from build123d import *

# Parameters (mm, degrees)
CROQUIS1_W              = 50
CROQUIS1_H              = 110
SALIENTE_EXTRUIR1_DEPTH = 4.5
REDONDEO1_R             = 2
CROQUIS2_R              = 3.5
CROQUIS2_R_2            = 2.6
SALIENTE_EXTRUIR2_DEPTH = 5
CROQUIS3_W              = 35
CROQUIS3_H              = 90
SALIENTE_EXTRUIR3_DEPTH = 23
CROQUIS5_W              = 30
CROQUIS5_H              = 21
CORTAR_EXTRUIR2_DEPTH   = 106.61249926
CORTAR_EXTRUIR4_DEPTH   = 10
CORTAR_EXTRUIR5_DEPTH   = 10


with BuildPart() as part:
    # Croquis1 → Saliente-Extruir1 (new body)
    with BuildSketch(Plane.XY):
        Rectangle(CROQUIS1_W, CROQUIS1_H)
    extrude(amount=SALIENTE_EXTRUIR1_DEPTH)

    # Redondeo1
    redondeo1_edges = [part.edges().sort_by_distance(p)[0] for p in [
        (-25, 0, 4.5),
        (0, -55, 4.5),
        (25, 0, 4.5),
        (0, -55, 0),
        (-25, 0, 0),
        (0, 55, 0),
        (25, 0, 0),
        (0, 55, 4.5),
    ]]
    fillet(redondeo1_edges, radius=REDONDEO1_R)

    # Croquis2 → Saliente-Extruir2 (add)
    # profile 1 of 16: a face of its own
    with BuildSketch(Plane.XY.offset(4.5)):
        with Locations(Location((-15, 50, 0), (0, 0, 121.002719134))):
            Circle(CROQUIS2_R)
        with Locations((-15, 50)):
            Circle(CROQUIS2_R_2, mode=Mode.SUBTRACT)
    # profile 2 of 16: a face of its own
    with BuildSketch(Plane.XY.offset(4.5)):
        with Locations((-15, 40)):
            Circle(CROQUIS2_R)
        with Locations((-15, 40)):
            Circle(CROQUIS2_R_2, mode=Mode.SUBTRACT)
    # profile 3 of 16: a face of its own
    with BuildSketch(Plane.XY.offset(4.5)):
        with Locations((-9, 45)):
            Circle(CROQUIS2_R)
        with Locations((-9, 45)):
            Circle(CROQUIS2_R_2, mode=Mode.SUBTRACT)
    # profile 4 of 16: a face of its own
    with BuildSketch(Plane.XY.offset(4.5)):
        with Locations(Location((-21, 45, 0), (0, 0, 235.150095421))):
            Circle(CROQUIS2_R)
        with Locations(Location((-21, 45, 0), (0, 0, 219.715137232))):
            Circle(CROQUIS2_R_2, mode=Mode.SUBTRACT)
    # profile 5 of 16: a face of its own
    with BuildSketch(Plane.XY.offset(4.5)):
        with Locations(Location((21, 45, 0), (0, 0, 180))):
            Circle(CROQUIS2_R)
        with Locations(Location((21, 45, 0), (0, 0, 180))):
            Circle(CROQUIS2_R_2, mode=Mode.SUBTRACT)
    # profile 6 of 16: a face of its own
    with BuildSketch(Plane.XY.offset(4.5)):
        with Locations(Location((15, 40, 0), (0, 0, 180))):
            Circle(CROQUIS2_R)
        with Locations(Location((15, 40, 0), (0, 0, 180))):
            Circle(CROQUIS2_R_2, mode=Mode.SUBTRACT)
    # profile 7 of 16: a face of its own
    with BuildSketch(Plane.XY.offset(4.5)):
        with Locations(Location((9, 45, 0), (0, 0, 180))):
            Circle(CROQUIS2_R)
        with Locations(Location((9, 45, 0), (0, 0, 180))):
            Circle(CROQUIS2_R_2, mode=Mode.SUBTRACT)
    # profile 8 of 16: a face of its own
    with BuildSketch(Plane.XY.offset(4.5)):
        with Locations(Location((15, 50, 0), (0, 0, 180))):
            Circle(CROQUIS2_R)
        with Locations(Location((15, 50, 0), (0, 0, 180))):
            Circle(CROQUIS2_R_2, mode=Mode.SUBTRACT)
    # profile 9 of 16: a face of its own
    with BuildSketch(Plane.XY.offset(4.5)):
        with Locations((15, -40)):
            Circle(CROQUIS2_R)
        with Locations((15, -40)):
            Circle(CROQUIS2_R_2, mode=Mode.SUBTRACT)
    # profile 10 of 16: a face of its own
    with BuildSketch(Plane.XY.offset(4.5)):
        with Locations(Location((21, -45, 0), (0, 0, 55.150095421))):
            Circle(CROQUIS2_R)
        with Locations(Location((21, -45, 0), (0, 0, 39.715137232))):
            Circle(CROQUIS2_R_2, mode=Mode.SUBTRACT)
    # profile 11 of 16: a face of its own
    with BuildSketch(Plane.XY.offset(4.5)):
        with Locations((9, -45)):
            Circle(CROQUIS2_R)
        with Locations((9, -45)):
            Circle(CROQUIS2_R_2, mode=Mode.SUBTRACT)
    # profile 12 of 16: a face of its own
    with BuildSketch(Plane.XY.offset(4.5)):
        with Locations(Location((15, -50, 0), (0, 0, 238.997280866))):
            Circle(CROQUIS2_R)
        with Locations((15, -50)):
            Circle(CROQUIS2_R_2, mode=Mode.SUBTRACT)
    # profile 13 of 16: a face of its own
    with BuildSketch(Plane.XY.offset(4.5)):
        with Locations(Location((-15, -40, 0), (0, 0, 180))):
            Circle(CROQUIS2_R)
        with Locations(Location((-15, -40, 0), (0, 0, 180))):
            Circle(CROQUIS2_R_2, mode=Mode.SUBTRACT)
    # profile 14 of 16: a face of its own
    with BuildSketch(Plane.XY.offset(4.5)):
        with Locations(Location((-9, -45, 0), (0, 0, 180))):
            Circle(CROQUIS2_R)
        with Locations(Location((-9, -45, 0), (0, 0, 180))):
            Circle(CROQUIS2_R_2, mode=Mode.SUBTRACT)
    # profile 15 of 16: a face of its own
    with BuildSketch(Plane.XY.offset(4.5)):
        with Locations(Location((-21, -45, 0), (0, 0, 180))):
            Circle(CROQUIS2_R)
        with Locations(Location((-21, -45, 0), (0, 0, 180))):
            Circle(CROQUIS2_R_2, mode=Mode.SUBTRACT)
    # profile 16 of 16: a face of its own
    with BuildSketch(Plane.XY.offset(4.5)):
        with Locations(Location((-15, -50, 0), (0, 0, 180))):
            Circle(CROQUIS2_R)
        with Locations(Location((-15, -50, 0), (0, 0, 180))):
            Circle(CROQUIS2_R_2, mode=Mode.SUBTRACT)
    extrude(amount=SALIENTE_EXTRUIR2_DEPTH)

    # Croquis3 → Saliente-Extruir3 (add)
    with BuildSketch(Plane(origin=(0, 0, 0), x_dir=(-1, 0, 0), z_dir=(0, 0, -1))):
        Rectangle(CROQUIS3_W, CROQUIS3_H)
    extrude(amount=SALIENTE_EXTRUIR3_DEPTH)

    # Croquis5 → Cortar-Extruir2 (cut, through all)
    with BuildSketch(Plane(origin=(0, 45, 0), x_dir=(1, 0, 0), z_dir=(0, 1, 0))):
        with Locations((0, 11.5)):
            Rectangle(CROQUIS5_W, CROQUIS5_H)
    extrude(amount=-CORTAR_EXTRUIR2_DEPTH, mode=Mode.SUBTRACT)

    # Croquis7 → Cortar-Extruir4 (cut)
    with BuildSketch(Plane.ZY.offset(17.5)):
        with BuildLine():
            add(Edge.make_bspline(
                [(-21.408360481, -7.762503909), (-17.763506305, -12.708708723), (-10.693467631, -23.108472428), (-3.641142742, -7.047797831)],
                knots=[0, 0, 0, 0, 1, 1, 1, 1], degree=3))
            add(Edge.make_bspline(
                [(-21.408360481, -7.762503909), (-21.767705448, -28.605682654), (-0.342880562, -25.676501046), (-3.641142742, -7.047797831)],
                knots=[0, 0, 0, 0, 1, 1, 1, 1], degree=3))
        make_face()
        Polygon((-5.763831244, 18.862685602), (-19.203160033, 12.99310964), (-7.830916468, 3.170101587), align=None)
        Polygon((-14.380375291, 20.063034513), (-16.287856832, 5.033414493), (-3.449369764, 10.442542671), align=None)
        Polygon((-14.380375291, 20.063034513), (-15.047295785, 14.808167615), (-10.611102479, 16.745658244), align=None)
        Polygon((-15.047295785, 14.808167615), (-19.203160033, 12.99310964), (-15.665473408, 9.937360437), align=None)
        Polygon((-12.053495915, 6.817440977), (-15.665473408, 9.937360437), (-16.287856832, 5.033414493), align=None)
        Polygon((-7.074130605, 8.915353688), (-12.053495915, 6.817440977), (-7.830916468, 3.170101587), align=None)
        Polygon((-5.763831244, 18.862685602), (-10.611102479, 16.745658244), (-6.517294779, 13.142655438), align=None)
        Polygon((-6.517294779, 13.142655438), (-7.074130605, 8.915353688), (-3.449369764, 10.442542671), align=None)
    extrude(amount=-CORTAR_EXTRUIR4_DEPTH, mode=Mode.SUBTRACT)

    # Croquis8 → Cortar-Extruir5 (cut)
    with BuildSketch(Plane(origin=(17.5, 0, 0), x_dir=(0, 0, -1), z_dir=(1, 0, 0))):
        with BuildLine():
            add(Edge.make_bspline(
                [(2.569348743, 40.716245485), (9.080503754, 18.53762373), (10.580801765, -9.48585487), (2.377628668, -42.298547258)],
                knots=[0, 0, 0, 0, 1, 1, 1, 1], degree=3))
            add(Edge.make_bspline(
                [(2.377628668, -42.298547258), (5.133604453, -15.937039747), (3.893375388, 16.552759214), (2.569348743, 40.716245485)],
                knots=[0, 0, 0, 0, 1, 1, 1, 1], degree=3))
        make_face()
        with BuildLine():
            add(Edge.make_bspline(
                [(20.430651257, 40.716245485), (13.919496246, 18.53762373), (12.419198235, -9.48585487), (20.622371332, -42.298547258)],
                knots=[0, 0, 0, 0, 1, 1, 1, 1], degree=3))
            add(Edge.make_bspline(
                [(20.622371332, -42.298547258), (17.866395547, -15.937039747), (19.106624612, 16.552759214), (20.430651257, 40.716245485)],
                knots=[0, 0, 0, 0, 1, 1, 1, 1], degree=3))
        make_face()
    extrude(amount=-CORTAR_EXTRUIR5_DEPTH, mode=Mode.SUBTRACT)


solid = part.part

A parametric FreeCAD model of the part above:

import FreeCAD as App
import Part
import Sketcher
from FreeCAD import Vector
Q = App.Units.Quantity


def edges_at(feature, points):
    """Names of the edges that pass closest to the given points."""
    edges = feature.Shape.Edges
    near = lambda p: min(range(len(edges)), key=lambda i: edges[i].distToShape(Part.Vertex(*p))[0])
    return sorted({f"Edge{near(p) + 1}" for p in points})

doc = App.newDocument("Part")
body = doc.addObject("PartDesign::Body", "Body")

sketch1 = body.newObject("Sketcher::SketchObject", "Sketch")
sketch1.AttachmentSupport = (doc.getObject("XY_Plane"), [""])
sketch1.MapMode = "FlatFace"
sketch1.addGeometry(Part.LineSegment(Vector(-25, 55, 0), Vector(-25, -55, 0)), False)
sketch1.addGeometry(Part.LineSegment(Vector(-25, -55, 0), Vector(25, -55, 0)), False)
sketch1.addGeometry(Part.LineSegment(Vector(25, -55, 0), Vector(25, 55, 0)), False)
sketch1.addGeometry(Part.LineSegment(Vector(25, 55, 0), Vector(-25, 55, 0)), False)
sketch1.addConstraint(Sketcher.Constraint("Coincident", 0, 2, 1, 1))
sketch1.addConstraint(Sketcher.Constraint("Coincident", 1, 2, 2, 1))
sketch1.addConstraint(Sketcher.Constraint("Coincident", 2, 2, 3, 1))
sketch1.addConstraint(Sketcher.Constraint("Coincident", 3, 2, 0, 1))
sketch1.addConstraint(Sketcher.Constraint("Vertical", 0))
sketch1.addConstraint(Sketcher.Constraint("Horizontal", 1))
sketch1.addConstraint(Sketcher.Constraint("Vertical", 2))
sketch1.addConstraint(Sketcher.Constraint("Horizontal", 3))
sketch1.addConstraint(Sketcher.Constraint("Symmetric", 0, 2, 2, 2, -1, 1))
sketch1.addConstraint(Sketcher.Constraint("DistanceX", 1, 1, 1, 2, Q("50 mm")))
sketch1.addConstraint(Sketcher.Constraint("DistanceY", 0, 2, 0, 1, Q("110 mm")))
pad1 = body.newObject("PartDesign::Pad", "Pad")
pad1.Profile = sketch1
pad1.Length = 4.5
doc.recompute()

fillet = body.newObject("PartDesign::Fillet", "Fillet")
fillet.Base = (pad1, edges_at(pad1, [
    (-25, 0, 4.5),
    (0, -55, 4.5),
    (25, 0, 4.5),
    (0, -55, 0),
    (-25, 0, 0),
    (0, 55, 0),
    (25, 0, 0),
    (0, 55, 4.5),
]))
fillet.Radius = 2

sketch2 = body.newObject("Sketcher::SketchObject", "Sketch001")
sketch2.AttachmentSupport = (doc.getObject("XY_Plane"), [""])
sketch2.MapMode = "FlatFace"
sketch2.AttachmentOffset = App.Placement(Vector(0, 0, 4.5), App.Rotation())
sketch2.addGeometry(Part.Circle(Vector(-15, 50, 0), Vector(0, 0, 1), 3.5), False)
sketch2.addGeometry(Part.Circle(Vector(-15, 50, 0), Vector(0, 0, 1), 2.6), False)
sketch2.addGeometry(Part.Circle(Vector(-15, 40, 0), Vector(0, 0, 1), 3.5), False)
sketch2.addGeometry(Part.Circle(Vector(-15, 40, 0), Vector(0, 0, 1), 2.6), False)
sketch2.addGeometry(Part.Circle(Vector(-9, 45, 0), Vector(0, 0, 1), 3.5), False)
sketch2.addGeometry(Part.Circle(Vector(-9, 45, 0), Vector(0, 0, 1), 2.6), False)
sketch2.addGeometry(Part.Circle(Vector(-21, 45, 0), Vector(0, 0, 1), 3.5), False)
sketch2.addGeometry(Part.Circle(Vector(-21, 45, 0), Vector(0, 0, 1), 2.6), False)
sketch2.addGeometry(Part.Circle(Vector(21, 45, 0), Vector(0, 0, 1), 3.5), False)
sketch2.addGeometry(Part.Circle(Vector(21, 45, 0), Vector(0, 0, 1), 2.6), False)
sketch2.addGeometry(Part.Circle(Vector(15, 40, 0), Vector(0, 0, 1), 3.5), False)
sketch2.addGeometry(Part.Circle(Vector(15, 40, 0), Vector(0, 0, 1), 2.6), False)
sketch2.addGeometry(Part.Circle(Vector(9, 45, 0), Vector(0, 0, 1), 3.5), False)
sketch2.addGeometry(Part.Circle(Vector(9, 45, 0), Vector(0, 0, 1), 2.6), False)
sketch2.addGeometry(Part.Circle(Vector(15, 50, 0), Vector(0, 0, 1), 3.5), False)
sketch2.addGeometry(Part.Circle(Vector(15, 50, 0), Vector(0, 0, 1), 2.6), False)
sketch2.addGeometry(Part.Circle(Vector(15, -40, 0), Vector(0, 0, 1), 3.5), False)
sketch2.addGeometry(Part.Circle(Vector(15, -40, 0), Vector(0, 0, 1), 2.6), False)
sketch2.addGeometry(Part.Circle(Vector(21, -45, 0), Vector(0, 0, 1), 3.5), False)
sketch2.addGeometry(Part.Circle(Vector(21, -45, 0), Vector(0, 0, 1), 2.6), False)
sketch2.addGeometry(Part.Circle(Vector(9, -45, 0), Vector(0, 0, 1), 3.5), False)
sketch2.addGeometry(Part.Circle(Vector(9, -45, 0), Vector(0, 0, 1), 2.6), False)
sketch2.addGeometry(Part.Circle(Vector(15, -50, 0), Vector(0, 0, 1), 3.5), False)
sketch2.addGeometry(Part.Circle(Vector(15, -50, 0), Vector(0, 0, 1), 2.6), False)
sketch2.addGeometry(Part.Circle(Vector(-15, -40, 0), Vector(0, 0, 1), 3.5), False)
sketch2.addGeometry(Part.Circle(Vector(-15, -40, 0), Vector(0, 0, 1), 2.6), False)
sketch2.addGeometry(Part.Circle(Vector(-9, -45, 0), Vector(0, 0, 1), 3.5), False)
sketch2.addGeometry(Part.Circle(Vector(-9, -45, 0), Vector(0, 0, 1), 2.6), False)
sketch2.addGeometry(Part.Circle(Vector(-21, -45, 0), Vector(0, 0, 1), 3.5), False)
sketch2.addGeometry(Part.Circle(Vector(-21, -45, 0), Vector(0, 0, 1), 2.6), False)
sketch2.addGeometry(Part.Circle(Vector(-15, -50, 0), Vector(0, 0, 1), 3.5), False)
sketch2.addGeometry(Part.Circle(Vector(-15, -50, 0), Vector(0, 0, 1), 2.6), False)
sketch2.addConstraint(Sketcher.Constraint("Coincident", 1, 3, 0, 3))
sketch2.addConstraint(Sketcher.Constraint("Coincident", 3, 3, 2, 3))
sketch2.addConstraint(Sketcher.Constraint("Coincident", 5, 3, 4, 3))
sketch2.addConstraint(Sketcher.Constraint("Coincident", 7, 3, 6, 3))
sketch2.addConstraint(Sketcher.Constraint("Coincident", 9, 3, 8, 3))
sketch2.addConstraint(Sketcher.Constraint("Coincident", 11, 3, 10, 3))
sketch2.addConstraint(Sketcher.Constraint("Coincident", 13, 3, 12, 3))
sketch2.addConstraint(Sketcher.Constraint("Coincident", 15, 3, 14, 3))
sketch2.addConstraint(Sketcher.Constraint("Coincident", 17, 3, 16, 3))
sketch2.addConstraint(Sketcher.Constraint("Coincident", 19, 3, 18, 3))
sketch2.addConstraint(Sketcher.Constraint("Coincident", 21, 3, 20, 3))
sketch2.addConstraint(Sketcher.Constraint("Coincident", 23, 3, 22, 3))
sketch2.addConstraint(Sketcher.Constraint("Coincident", 25, 3, 24, 3))
sketch2.addConstraint(Sketcher.Constraint("Coincident", 27, 3, 26, 3))
sketch2.addConstraint(Sketcher.Constraint("Coincident", 29, 3, 28, 3))
sketch2.addConstraint(Sketcher.Constraint("Coincident", 31, 3, 30, 3))
sketch2.addConstraint(Sketcher.Constraint("Equal", 0, 2))
sketch2.addConstraint(Sketcher.Constraint("Equal", 1, 3))
sketch2.addConstraint(Sketcher.Constraint("Equal", 2, 4))
sketch2.addConstraint(Sketcher.Constraint("Equal", 3, 5))
sketch2.addConstraint(Sketcher.Constraint("Equal", 4, 6))
sketch2.addConstraint(Sketcher.Constraint("Equal", 5, 7))
sketch2.addConstraint(Sketcher.Constraint("Equal", 6, 8))
sketch2.addConstraint(Sketcher.Constraint("Equal", 7, 9))
sketch2.addConstraint(Sketcher.Constraint("Equal", 8, 10))
sketch2.addConstraint(Sketcher.Constraint("Equal", 9, 11))
sketch2.addConstraint(Sketcher.Constraint("Equal", 10, 12))
sketch2.addConstraint(Sketcher.Constraint("Equal", 11, 13))
sketch2.addConstraint(Sketcher.Constraint("Equal", 12, 14))
sketch2.addConstraint(Sketcher.Constraint("Equal", 13, 15))
sketch2.addConstraint(Sketcher.Constraint("Equal", 14, 16))
sketch2.addConstraint(Sketcher.Constraint("Equal", 15, 17))
sketch2.addConstraint(Sketcher.Constraint("Equal", 16, 18))
sketch2.addConstraint(Sketcher.Constraint("Equal", 17, 19))
sketch2.addConstraint(Sketcher.Constraint("Equal", 18, 20))
sketch2.addConstraint(Sketcher.Constraint("Equal", 19, 21))
sketch2.addConstraint(Sketcher.Constraint("Equal", 20, 22))
sketch2.addConstraint(Sketcher.Constraint("Equal", 21, 23))
sketch2.addConstraint(Sketcher.Constraint("Equal", 22, 24))
sketch2.addConstraint(Sketcher.Constraint("Equal", 23, 25))
sketch2.addConstraint(Sketcher.Constraint("Equal", 24, 26))
sketch2.addConstraint(Sketcher.Constraint("Equal", 25, 27))
sketch2.addConstraint(Sketcher.Constraint("Equal", 26, 28))
sketch2.addConstraint(Sketcher.Constraint("Equal", 27, 29))
sketch2.addConstraint(Sketcher.Constraint("Equal", 28, 30))
sketch2.addConstraint(Sketcher.Constraint("Equal", 29, 31))
sketch2.addConstraint(Sketcher.Constraint("Symmetric", 2, 3, 16, 3, -1, 1))
sketch2.addConstraint(Sketcher.Constraint("Symmetric", 6, 3, 18, 3, -1, 1))
sketch2.addConstraint(Sketcher.Constraint("Symmetric", 4, 3, 20, 3, -1, 1))
sketch2.addConstraint(Sketcher.Constraint("Symmetric", 0, 3, 22, 3, -1, 1))
sketch2.addConstraint(Sketcher.Constraint("Symmetric", 10, 3, 24, 3, -1, 1))
sketch2.addConstraint(Sketcher.Constraint("Symmetric", 12, 3, 26, 3, -1, 1))
sketch2.addConstraint(Sketcher.Constraint("Symmetric", 8, 3, 28, 3, -1, 1))
sketch2.addConstraint(Sketcher.Constraint("Symmetric", 14, 3, 30, 3, -1, 1))
sketch2.addConstraint(Sketcher.Constraint("Symmetric", 6, 3, 8, 3, -2))
sketch2.addConstraint(Sketcher.Constraint("Symmetric", 2, 3, 10, 3, -2))
sketch2.addConstraint(Sketcher.Constraint("Symmetric", 4, 3, 12, 3, -2))
sketch2.addConstraint(Sketcher.Constraint("Symmetric", 0, 3, 14, 3, -2))
sketch2.addConstraint(Sketcher.Constraint("Horizontal", 5, 3, 6, 3))
sketch2.addConstraint(Sketcher.Constraint("Vertical", 1, 3, 2, 3))
sketch2.addConstraint(Sketcher.Constraint("Diameter", 0, Q("7 mm")))
sketch2.addConstraint(Sketcher.Constraint("Diameter", 1, Q("5.2 mm")))
sketch2.addConstraint(Sketcher.Constraint("DistanceX", 0, 3, -1, 1, Q("15 mm")))
sketch2.addConstraint(Sketcher.Constraint("DistanceY", -1, 1, 0, 3, Q("50 mm")))
sketch2.addConstraint(Sketcher.Constraint("DistanceY", -1, 1, 2, 3, Q("40 mm")))
sketch2.addConstraint(Sketcher.Constraint("DistanceX", 4, 3, -1, 1, Q("9 mm")))
sketch2.addConstraint(Sketcher.Constraint("DistanceY", -1, 1, 4, 3, Q("45 mm")))
sketch2.addConstraint(Sketcher.Constraint("DistanceX", 6, 3, -1, 1, Q("21 mm")))
pad2 = body.newObject("PartDesign::Pad", "Pad001")
pad2.Profile = sketch2
pad2.Length = 5

sketch3 = body.newObject("Sketcher::SketchObject", "Sketch002")
sketch3.AttachmentSupport = (doc.getObject("XY_Plane"), [""])
sketch3.MapMode = "FlatFace"
sketch3.addGeometry(Part.LineSegment(Vector(18, 45, 0), Vector(18, -45, 0)), False)
sketch3.addGeometry(Part.LineSegment(Vector(18, -45, 0), Vector(-18, -45, 0)), False)
sketch3.addGeometry(Part.LineSegment(Vector(-18, -45, 0), Vector(-18, 45, 0)), False)
sketch3.addGeometry(Part.LineSegment(Vector(-18, 45, 0), Vector(18, 45, 0)), False)
sketch3.addConstraint(Sketcher.Constraint("Coincident", 0, 2, 1, 1))
sketch3.addConstraint(Sketcher.Constraint("Coincident", 1, 2, 2, 1))
sketch3.addConstraint(Sketcher.Constraint("Coincident", 2, 2, 3, 1))
sketch3.addConstraint(Sketcher.Constraint("Coincident", 3, 2, 0, 1))
sketch3.addConstraint(Sketcher.Constraint("Vertical", 0))
sketch3.addConstraint(Sketcher.Constraint("Horizontal", 1))
sketch3.addConstraint(Sketcher.Constraint("Vertical", 2))
sketch3.addConstraint(Sketcher.Constraint("Horizontal", 3))
sketch3.addConstraint(Sketcher.Constraint("Symmetric", 0, 2, 2, 2, -1, 1))
sketch3.addConstraint(Sketcher.Constraint("DistanceX", 1, 2, 1, 1, Q("35 mm")))
sketch3.addConstraint(Sketcher.Constraint("DistanceY", 0, 2, 0, 1, Q("90 mm")))
pad3 = body.newObject("PartDesign::Pad", "Pad002")
pad3.Profile = sketch3
pad3.Length = 23
pad3.Reversed = True

sketch4 = body.newObject("Sketcher::SketchObject", "Sketch003")
sketch4.AttachmentSupport = (doc.getObject("XZ_Plane"), [""])
sketch4.MapMode = "FlatFace"
sketch4.AttachmentOffset = App.Placement(Vector(0, 0, -45), App.Rotation())
sketch4.addGeometry(Part.LineSegment(Vector(-15, -22, 0), Vector(-15, -1, 0)), False)
sketch4.addGeometry(Part.LineSegment(Vector(-15, -1, 0), Vector(15, -1, 0)), False)
sketch4.addGeometry(Part.LineSegment(Vector(15, -1, 0), Vector(15, -22, 0)), False)
sketch4.addGeometry(Part.LineSegment(Vector(15, -22, 0), Vector(-15, -22, 0)), False)
sketch4.addConstraint(Sketcher.Constraint("Coincident", 0, 2, 1, 1))
sketch4.addConstraint(Sketcher.Constraint("Coincident", 1, 2, 2, 1))
sketch4.addConstraint(Sketcher.Constraint("Coincident", 2, 2, 3, 1))
sketch4.addConstraint(Sketcher.Constraint("Coincident", 3, 2, 0, 1))
sketch4.addConstraint(Sketcher.Constraint("Vertical", 0))
sketch4.addConstraint(Sketcher.Constraint("Horizontal", 1))
sketch4.addConstraint(Sketcher.Constraint("Vertical", 2))
sketch4.addConstraint(Sketcher.Constraint("Horizontal", 3))
sketch4.addConstraint(Sketcher.Constraint("DistanceX", 1, 1, 1, 2, Q("30 mm")))
sketch4.addConstraint(Sketcher.Constraint("DistanceY", 0, 1, 0, 2, Q("21 mm")))
sketch4.addConstraint(Sketcher.Constraint("DistanceX", 0, 2, -1, 1, Q("15 mm")))
sketch4.addConstraint(Sketcher.Constraint("DistanceY", 0, 2, -1, 1, Q("1 mm")))
pocket1 = body.newObject("PartDesign::Pocket", "Pocket")
pocket1.Profile = sketch4
pocket1.Type = "ThroughAll"
pocket1.Reversed = True

sketch5 = body.newObject("Sketcher::SketchObject", "Sketch004")
sketch5.AttachmentSupport = (doc.getObject("YZ_Plane"), [""])
sketch5.MapMode = "FlatFace"
sketch5.AttachmentOffset = App.Placement(Vector(0, 0, -17.5), App.Rotation())
sketch5.addGeometry(Part.BSplineCurve([Vector(-7.762504, -21.40836, 0), Vector(-12.708709, -17.763506, 0), Vector(-23.108472, -10.693468, 0), Vector(-7.047798, -3.641143, 0)], [4, 4], [0, 1], False, 3, [1, 1, 1, 1], False), False)
sketch5.addGeometry(Part.BSplineCurve([Vector(-7.762504, -21.40836, 0), Vector(-28.605683, -21.767705, 0), Vector(-25.676501, -0.342881, 0), Vector(-7.047798, -3.641143, 0)], [4, 4], [0, 1], False, 3, [1, 1, 1, 1], False), False)
sketch5.addGeometry(Part.LineSegment(Vector(9.93736, -15.665473, 0), Vector(5.033414, -16.287857, 0)), False)
sketch5.addGeometry(Part.LineSegment(Vector(5.033414, -16.287857, 0), Vector(6.817441, -12.053496, 0)), False)
sketch5.addGeometry(Part.LineSegment(Vector(6.817441, -12.053496, 0), Vector(3.170102, -7.830916, 0)), False)
sketch5.addGeometry(Part.LineSegment(Vector(3.170102, -7.830916, 0), Vector(8.915354, -7.074131, 0)), False)
sketch5.addGeometry(Part.LineSegment(Vector(8.915354, -7.074131, 0), Vector(10.442543, -3.44937, 0)), False)
sketch5.addGeometry(Part.LineSegment(Vector(10.442543, -3.44937, 0), Vector(13.142655, -6.517295, 0)), False)
sketch5.addGeometry(Part.LineSegment(Vector(13.142655, -6.517295, 0), Vector(18.862686, -5.763831, 0)), False)
sketch5.addGeometry(Part.LineSegment(Vector(18.862686, -5.763831, 0), Vector(16.745658, -10.611102, 0)), False)
sketch5.addGeometry(Part.LineSegment(Vector(16.745658, -10.611102, 0), Vector(20.063035, -14.380375, 0)), False)
sketch5.addGeometry(Part.LineSegment(Vector(20.063035, -14.380375, 0), Vector(14.808168, -15.047296, 0)), False)
sketch5.addGeometry(Part.LineSegment(Vector(14.808168, -15.047296, 0), Vector(12.99311, -19.20316, 0)), False)
sketch5.addGeometry(Part.LineSegment(Vector(12.99311, -19.20316, 0), Vector(9.93736, -15.665473, 0)), False)
sketch5.addConstraint(Sketcher.Constraint("Block", 0))
sketch5.addConstraint(Sketcher.Constraint("Block", 1))
sketch5.addConstraint(Sketcher.Constraint("Coincident", 2, 2, 3, 1))
sketch5.addConstraint(Sketcher.Constraint("Coincident", 3, 2, 4, 1))
sketch5.addConstraint(Sketcher.Constraint("Coincident", 4, 2, 5, 1))
sketch5.addConstraint(Sketcher.Constraint("Coincident", 5, 2, 6, 1))
sketch5.addConstraint(Sketcher.Constraint("Coincident", 6, 2, 7, 1))
sketch5.addConstraint(Sketcher.Constraint("Coincident", 7, 2, 8, 1))
sketch5.addConstraint(Sketcher.Constraint("Coincident", 8, 2, 9, 1))
sketch5.addConstraint(Sketcher.Constraint("Coincident", 9, 2, 10, 1))
sketch5.addConstraint(Sketcher.Constraint("Coincident", 10, 2, 11, 1))
sketch5.addConstraint(Sketcher.Constraint("Coincident", 11, 2, 12, 1))
sketch5.addConstraint(Sketcher.Constraint("Coincident", 12, 2, 13, 1))
sketch5.addConstraint(Sketcher.Constraint("Coincident", 13, 2, 2, 1))
sketch5.addConstraint(Sketcher.Constraint("DistanceY", 11, 2, 7, 2, Q("8.530001 mm")))
sketch5.addConstraint(Sketcher.Constraint("Distance", 13, Q("4.674701 mm")))
sketch5.addConstraint(Sketcher.Constraint("DistanceX", -1, 1, 4, 2, Q("3.170102 mm")))
sketch5.addConstraint(Sketcher.Constraint("DistanceX", 3, 2, 6, 2, Q("3.625102 mm")))
sketch5.addConstraint(Sketcher.Constraint("DistanceX", 5, 2, 7, 2, Q("4.227302 mm")))
sketch5.addConstraint(Sketcher.Constraint("DistanceY", 3, 2, 7, 2, Q("5.536201 mm")))
sketch5.addConstraint(Sketcher.Constraint("DistanceY", 5, 2, 8, 2, Q("1.310299 mm")))
sketch5.addConstraint(Sketcher.Constraint("Distance", 3, Q("4.594841 mm")))
sketch5.addConstraint(Sketcher.Constraint("Distance", 4, Q("5.579719 mm")))
sketch5.addConstraint(Sketcher.Constraint("Distance", 5, Q("5.794881 mm")))
sketch5.addConstraint(Sketcher.Constraint("Distance", 8, Q("5.769441 mm")))
sketch5.addConstraint(Sketcher.Constraint("Distance", 9, Q("5.289409 mm")))
sketch5.addConstraint(Sketcher.Constraint("Distance", 11, Q("5.297019 mm")))
sketch5.addConstraint(Sketcher.Constraint("DistanceX", -1, 1, 3, 2, Q("6.817441 mm")))
sketch5.addConstraint(Sketcher.Constraint("DistanceY", 5, 2, -1, 1, Q("7.074131 mm")))
sketch5.addConstraint(Sketcher.Constraint("DistanceY", 6, 2, -1, 1, Q("3.44937 mm")))
sketch5.addConstraint(Sketcher.Constraint("DistanceX", -1, 1, 9, 2, Q("16.745658 mm")))
sketch5.addConstraint(Sketcher.Constraint("DistanceX", -1, 1, 12, 2, Q("12.99311 mm")))
sketch5.addConstraint(Sketcher.Constraint("DistanceY", 12, 2, -1, 1, Q("19.20316 mm")))
sketch5.addConstraint(Sketcher.Constraint("DistanceX", -1, 1, 13, 2, Q("9.93736 mm")))
sketch5.addConstraint(Sketcher.Constraint("DistanceY", 2, 2, 3, 2, Q("4.234361 mm")))
sketch5.addConstraint(Sketcher.Constraint("DistanceX", 2, 2, 5, 2, Q("3.881939 mm")))
sketch5.addConstraint(Sketcher.Constraint("DistanceX", 8, 2, 10, 2, Q("1.200349 mm")))
sketch5.addConstraint(Sketcher.Constraint("DistanceY", 10, 2, 7, 2, Q("7.863081 mm")))
pocket2 = body.newObject("PartDesign::Pocket", "Pocket001")
pocket2.Profile = sketch5
pocket2.Length = 10
pocket2.Reversed = True

sketch6 = body.newObject("Sketcher::SketchObject", "Sketch005")
sketch6.AttachmentSupport = (doc.getObject("YZ_Plane"), [""])
sketch6.MapMode = "FlatFace"
sketch6.AttachmentOffset = App.Placement(Vector(0, 0, 17.5), App.Rotation())
sketch6.addGeometry(Part.BSplineCurve([Vector(40.716245, -2.569349, 0), Vector(18.537624, -9.080504, 0), Vector(-9.485855, -10.580802, 0), Vector(-42.298547, -2.377629, 0)], [4, 4], [0, 1], False, 3, [1, 1, 1, 1], False), False)
sketch6.addGeometry(Part.BSplineCurve([Vector(-42.298547, -2.377629, 0), Vector(-15.93704, -5.133604, 0), Vector(16.552759, -3.893375, 0), Vector(40.716245, -2.569349, 0)], [4, 4], [0, 1], False, 3, [1, 1, 1, 1], False), False)
sketch6.addGeometry(Part.BSplineCurve([Vector(40.716245, -20.430651, 0), Vector(18.537624, -13.919496, 0), Vector(-9.485855, -12.419198, 0), Vector(-42.298547, -20.622371, 0)], [4, 4], [0, 1], False, 3, [1, 1, 1, 1], False), False)
sketch6.addGeometry(Part.BSplineCurve([Vector(-42.298547, -20.622371, 0), Vector(-15.93704, -17.866396, 0), Vector(16.552759, -19.106625, 0), Vector(40.716245, -20.430651, 0)], [4, 4], [0, 1], False, 3, [1, 1, 1, 1], False), False)
sketch6.addConstraint(Sketcher.Constraint("Block", 0))
sketch6.addConstraint(Sketcher.Constraint("Block", 1))
sketch6.addConstraint(Sketcher.Constraint("Block", 2))
sketch6.addConstraint(Sketcher.Constraint("Block", 3))
pocket3 = body.newObject("PartDesign::Pocket", "Pocket002")
pocket3.Profile = sketch6
pocket3.Length = 10

doc.recompute()
